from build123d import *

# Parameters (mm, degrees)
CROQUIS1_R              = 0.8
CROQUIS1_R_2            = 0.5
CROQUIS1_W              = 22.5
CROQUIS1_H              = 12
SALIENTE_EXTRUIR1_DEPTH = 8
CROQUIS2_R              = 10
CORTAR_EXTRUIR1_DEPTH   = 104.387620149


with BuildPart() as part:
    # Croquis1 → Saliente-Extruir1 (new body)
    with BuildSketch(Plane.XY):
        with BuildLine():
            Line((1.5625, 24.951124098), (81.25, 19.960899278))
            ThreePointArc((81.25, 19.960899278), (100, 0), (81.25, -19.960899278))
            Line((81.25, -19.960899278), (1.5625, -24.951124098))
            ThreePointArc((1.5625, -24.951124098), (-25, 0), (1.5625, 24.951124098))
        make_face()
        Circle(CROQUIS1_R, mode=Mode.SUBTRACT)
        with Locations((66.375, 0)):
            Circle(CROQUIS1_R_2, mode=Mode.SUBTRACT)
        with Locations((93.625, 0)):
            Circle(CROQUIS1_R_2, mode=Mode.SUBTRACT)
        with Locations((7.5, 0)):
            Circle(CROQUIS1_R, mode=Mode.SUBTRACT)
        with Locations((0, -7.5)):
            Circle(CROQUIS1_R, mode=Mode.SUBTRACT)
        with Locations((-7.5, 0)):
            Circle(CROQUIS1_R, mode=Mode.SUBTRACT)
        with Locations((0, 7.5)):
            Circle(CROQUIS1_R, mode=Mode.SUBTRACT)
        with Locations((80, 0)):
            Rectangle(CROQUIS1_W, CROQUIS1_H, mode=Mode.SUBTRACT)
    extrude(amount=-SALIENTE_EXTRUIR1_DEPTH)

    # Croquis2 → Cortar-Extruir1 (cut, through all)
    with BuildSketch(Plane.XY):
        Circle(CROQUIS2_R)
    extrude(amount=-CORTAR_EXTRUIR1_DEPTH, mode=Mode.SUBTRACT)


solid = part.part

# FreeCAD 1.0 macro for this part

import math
import FreeCAD as App
import Part
import Sketcher
Q = App.Units.Quantity

doc = App.newDocument("Part")
body = doc.addObject("PartDesign::Body", "Body")

# Sketch on XY plane
sketch1 = doc.addObject("Sketcher::SketchObject", "Sketch")
body.addObject(sketch1)
sketch1.AttachmentSupport = (doc.XY_Plane, [""])
sketch1.MapMode = "FlatFace"
sketch1.addGeometry(Part.LineSegment(App.Vector(81.2, 20, 0), App.Vector(1.6, 25, 0)), False)
sketch1.addGeometry(Part.ArcOfCircle(Part.Circle(App.Vector(0, 0, 0), App.Vector(0, 0, 1), 25), math.radians(86), math.radians(274)), False)
sketch1.addGeometry(Part.LineSegment(App.Vector(1.6, -25, 0), App.Vector(81.2, -20, 0)), False)
sketch1.addGeometry(Part.ArcOfCircle(Part.Circle(App.Vector(80, 0, 0), App.Vector(0, 0, 1), 20), math.radians(-86), math.radians(86)), False)
sketch1.addGeometry(Part.Circle(App.Vector(0, -7.5, 0), App.Vector(0, 0, 1), 0.8), False)
sketch1.addGeometry(Part.Circle(App.Vector(93.6, 0, 0), App.Vector(0, 0, 1), 0.5), False)
sketch1.addGeometry(Part.LineSegment(App.Vector(68.8, -6, 0), App.Vector(68.8, 6, 0)), False)
sketch1.addGeometry(Part.LineSegment(App.Vector(68.8, 6, 0), App.Vector(91.2, 6, 0)), False)
sketch1.addGeometry(Part.LineSegment(App.Vector(91.2, 6, 0), App.Vector(91.2, -6, 0)), False)
sketch1.addGeometry(Part.LineSegment(App.Vector(91.2, -6, 0), App.Vector(68.8, -6, 0)), False)
sketch1.addGeometry(Part.Circle(App.Vector(66.4, 0, 0), App.Vector(0, 0, 1), 0.5), False)
sketch1.addGeometry(Part.Circle(App.Vector(7.5, 0, 0), App.Vector(0, 0, 1), 0.8), False)
sketch1.addGeometry(Part.Circle(App.Vector(0, 0, 0), App.Vector(0, 0, 1), 0.8), False)
sketch1.addGeometry(Part.Circle(App.Vector(-7.5, 0, 0), App.Vector(0, 0, 1), 0.8), False)
sketch1.addGeometry(Part.Circle(App.Vector(0, 7.5, 0), App.Vector(0, 0, 1), 0.8), False)
sketch1.addConstraint(Sketcher.Constraint("Tangent", 0, 2, 1, 1))
sketch1.addConstraint(Sketcher.Constraint("Tangent", 1, 2, 2, 1))
sketch1.addConstraint(Sketcher.Constraint("Tangent", 2, 2, 3, 1))
sketch1.addConstraint(Sketcher.Constraint("Tangent", 3, 2, 0, 1))
sketch1.addConstraint(Sketcher.Constraint("Coincident", 6, 2, 7, 1))
sketch1.addConstraint(Sketcher.Constraint("Coincident", 7, 2, 8, 1))
sketch1.addConstraint(Sketcher.Constraint("Coincident", 8, 2, 9, 1))
sketch1.addConstraint(Sketcher.Constraint("Coincident", 9, 2, 6, 1))
sketch1.addConstraint(Sketcher.Constraint("Vertical", 6))
sketch1.addConstraint(Sketcher.Constraint("Horizontal", 7))
sketch1.addConstraint(Sketcher.Constraint("Vertical", 8))
sketch1.addConstraint(Sketcher.Constraint("Horizontal", 9))
sketch1.addConstraint(Sketcher.Constraint("Coincident", 1, 3, -1, 1))
sketch1.addConstraint(Sketcher.Constraint("Coincident", 12, 3, -1, 1))
sketch1.addConstraint(Sketcher.Constraint("Equal", 5, 10))
sketch1.addConstraint(Sketcher.Constraint("Equal", 4, 11))
sketch1.addConstraint(Sketcher.Constraint("Equal", 11, 12))
sketch1.addConstraint(Sketcher.Constraint("Equal", 12, 13))
sketch1.addConstraint(Sketcher.Constraint("Equal", 13, 14))
sketch1.addConstraint(Sketcher.Constraint("Symmetric", 11, 3, 13, 3, -1, 1))
sketch1.addConstraint(Sketcher.Constraint("Symmetric", 4, 3, 14, 3, -1, 1))
sketch1.addConstraint(Sketcher.Constraint("PointOnObject", 3, 3, -1))
sketch1.addConstraint(Sketcher.Constraint("PointOnObject", 4, 3, -2))
sketch1.addConstraint(Sketcher.Constraint("PointOnObject", 5, 3, -1))
sketch1.addConstraint(Sketcher.Constraint("PointOnObject", 10, 3, -1))
sketch1.addConstraint(Sketcher.Constraint("PointOnObject", 11, 3, -1))
sketch1.addConstraint(Sketcher.Constraint("Diameter", 5, Q("1 mm")))
sketch1.addConstraint(Sketcher.Constraint("Radius", 1, Q("25 mm")))
sketch1.addConstraint(Sketcher.Constraint("Radius", 3, Q("20 mm")))
sketch1.addConstraint(Sketcher.Constraint("Diameter", 4, Q("1.6 mm")))
sketch1.addConstraint(Sketcher.Constraint("DistanceY", 6, 1, 6, 2, Q("12 mm")))
sketch1.addConstraint(Sketcher.Constraint("DistanceX", 7, 1, 7, 2, Q("22.5 mm")))
sketch1.addConstraint(Sketcher.Constraint("DistanceX", -1, 1, 3, 3, Q("80 mm")))
sketch1.addConstraint(Sketcher.Constraint("DistanceY", -1, 1, 6, 2, Q("6 mm")))
sketch1.addConstraint(Sketcher.Constraint("DistanceX", 13, 3, 11, 3, Q("15 mm")))
sketch1.addConstraint(Sketcher.Constraint("DistanceY", 4, 3, 14, 3, Q("15 mm")))
sketch1.addConstraint(Sketcher.Constraint("DistanceX", 3, 2, 7, 2, Q("10 mm")))
sketch1.addConstraint(Sketcher.Constraint("DistanceX", 10, 3, 5, 3, Q("27.25 mm")))
sketch1.addConstraint(Sketcher.Constraint("DistanceX", -1, 1, 5, 3, Q("93.625 mm")))
pad1 = doc.addObject("PartDesign::Pad", "Pad")
body.addObject(pad1)
pad1.Profile = sketch1
pad1.Length = 8
pad1.Reversed = True

# Sketch on XY plane
sketch2 = doc.addObject("Sketcher::SketchObject", "Sketch001")
body.addObject(sketch2)
sketch2.AttachmentSupport = (doc.XY_Plane, [""])
sketch2.MapMode = "FlatFace"
sketch2.addGeometry(Part.Circle(App.Vector(0, 0, 0), App.Vector(0, 0, 1), 10), False)
sketch2.addConstraint(Sketcher.Constraint("Coincident", 0, 3, -1, 1))
sketch2.addConstraint(Sketcher.Constraint("Diameter", 0, Q("20 mm")))
pocket1 = doc.addObject("PartDesign::Pocket", "Pocket")
body.addObject(pocket1)
pocket1.Profile = sketch2
pocket1.Type = "ThroughAll"

doc.recompute()
